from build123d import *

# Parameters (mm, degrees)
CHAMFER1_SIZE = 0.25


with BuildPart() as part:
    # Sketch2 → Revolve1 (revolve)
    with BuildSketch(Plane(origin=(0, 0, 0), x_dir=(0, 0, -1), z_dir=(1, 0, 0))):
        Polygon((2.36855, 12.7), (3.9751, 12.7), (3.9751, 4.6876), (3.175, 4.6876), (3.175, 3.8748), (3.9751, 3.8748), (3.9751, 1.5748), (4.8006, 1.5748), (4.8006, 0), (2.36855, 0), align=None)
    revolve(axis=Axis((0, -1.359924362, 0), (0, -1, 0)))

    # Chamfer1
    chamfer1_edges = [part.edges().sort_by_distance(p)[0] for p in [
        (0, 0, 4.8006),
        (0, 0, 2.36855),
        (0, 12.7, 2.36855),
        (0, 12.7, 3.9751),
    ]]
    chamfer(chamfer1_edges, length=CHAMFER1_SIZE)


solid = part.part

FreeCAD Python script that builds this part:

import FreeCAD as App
import Part
import Sketcher
from FreeCAD import Vector
Q = App.Units.Quantity


def edges_at(feature, points):
    """Names of the edges that pass closest to the given points."""
    edges = feature.Shape.Edges
    near = lambda p: min(range(len(edges)), key=lambda i: edges[i].distToShape(Part.Vertex(*p))[0])
    return sorted({f"Edge{near(p) + 1}" for p in points})


def add_polygon(sketch, points):
    """Adds a closed chain of lines whose ends are joined by coincident constraints."""
    first, n = sketch.GeometryCount, len(points)
    for a, b in zip(points, points[1:] + points[:1]):
        sketch.addGeometry(Part.LineSegment(App.Vector(*a, 0), App.Vector(*b, 0)), False)
    for i in range(n):
        sketch.addConstraint(Sketcher.Constraint("Coincident", first + i, 2, first + (i + 1) % n, 1))

doc = App.newDocument("Part")
params = doc.addObject("Spreadsheet::Sheet", "Params")
for row, (alias, value) in enumerate([
    ("sketch1_width", "0.5 in"),
    ("sketch1_width2", "0.062 in"),
    ("sketch1_width3", "0.032 in"),
    ("revolution_angle", "360 deg"),
    ("chamfer_size", "0.25 mm"),
], start=1):
    params.set(f"A{row}", alias)
    params.set(f"B{row}", "=" + value)
    params.setAlias(f"B{row}", alias)

body = doc.addObject("PartDesign::Body", "Body")

sketch1 = body.newObject("Sketcher::SketchObject", "Sketch")
sketch1.AttachmentSupport = (doc.getObject("YZ_Plane"), [""])
sketch1.MapMode = "FlatFace"
add_polygon(sketch1, [(12.7, -4), (12.7, -2.4), (0, -2.4), (0, -4.8), (1.6, -4.8), (1.6, -4), (3.9, -4), (3.9, -3.2), (4.7, -3.2), (4.7, -4)])
sketch1.addConstraint([
    Sketcher.Constraint("Vertical", 0),
    Sketcher.Constraint("Horizontal", 1),
    Sketcher.Constraint("Vertical", 2),
    Sketcher.Constraint("Horizontal", 3),
    Sketcher.Constraint("Vertical", 4),
    Sketcher.Constraint("Horizontal", 5),
    Sketcher.Constraint("Vertical", 6),
    Sketcher.Constraint("Horizontal", 7),
    Sketcher.Constraint("Vertical", 8),
    Sketcher.Constraint("Horizontal", 9),
    Sketcher.Constraint("PointOnObject", 1, 2, -2),
    Sketcher.Constraint("Horizontal", 5, 2, 8, 2),
    Sketcher.Constraint("DistanceX", 1, 2, 1, 1, Q("0.5 in")),
    Sketcher.Constraint("DistanceX", 3, 1, 3, 2, Q("0.062 in")),
    Sketcher.Constraint("DistanceX", 7, 1, 7, 2, Q("0.032 in")),
    Sketcher.Constraint("DistanceY", 4, 1, 4, 2, Q("0.0325 in")),
    Sketcher.Constraint("DistanceY", 6, 1, 6, 2, Q("0.0315 in")),
    Sketcher.Constraint("DistanceY", 2, 2, -1, 1, Q("0.189 in")),
    Sketcher.Constraint("DistanceX", 5, 1, 5, 2, Q("2.3 mm")),
    Sketcher.Constraint("DistanceY", 0, 1, 0, 2, Q("1.60655 mm")),
])
sketch1.setExpression("Constraints[22]", "Params.sketch1_width")
sketch1.setExpression("Constraints[23]", "Params.sketch1_width2")
sketch1.setExpression("Constraints[24]", "Params.sketch1_width3")
revolution = body.newObject("PartDesign::Revolution", "Revolution")
revolution.Profile = sketch1
revolution.ReferenceAxis = (sketch1, ["H_Axis"])
revolution.setExpression("Angle", "Params.revolution_angle")
doc.recompute()

chamfer = body.newObject("PartDesign::Chamfer", "Chamfer")
chamfer.Base = (revolution, edges_at(revolution, [
    (0, 0, 4.801),
    (0, 0, 2.369),
    (0, 12.7, 2.369),
    (0, 12.7, 3.975),
]))
chamfer.setExpression("Size", "Params.chamfer_size")

doc.recompute()
